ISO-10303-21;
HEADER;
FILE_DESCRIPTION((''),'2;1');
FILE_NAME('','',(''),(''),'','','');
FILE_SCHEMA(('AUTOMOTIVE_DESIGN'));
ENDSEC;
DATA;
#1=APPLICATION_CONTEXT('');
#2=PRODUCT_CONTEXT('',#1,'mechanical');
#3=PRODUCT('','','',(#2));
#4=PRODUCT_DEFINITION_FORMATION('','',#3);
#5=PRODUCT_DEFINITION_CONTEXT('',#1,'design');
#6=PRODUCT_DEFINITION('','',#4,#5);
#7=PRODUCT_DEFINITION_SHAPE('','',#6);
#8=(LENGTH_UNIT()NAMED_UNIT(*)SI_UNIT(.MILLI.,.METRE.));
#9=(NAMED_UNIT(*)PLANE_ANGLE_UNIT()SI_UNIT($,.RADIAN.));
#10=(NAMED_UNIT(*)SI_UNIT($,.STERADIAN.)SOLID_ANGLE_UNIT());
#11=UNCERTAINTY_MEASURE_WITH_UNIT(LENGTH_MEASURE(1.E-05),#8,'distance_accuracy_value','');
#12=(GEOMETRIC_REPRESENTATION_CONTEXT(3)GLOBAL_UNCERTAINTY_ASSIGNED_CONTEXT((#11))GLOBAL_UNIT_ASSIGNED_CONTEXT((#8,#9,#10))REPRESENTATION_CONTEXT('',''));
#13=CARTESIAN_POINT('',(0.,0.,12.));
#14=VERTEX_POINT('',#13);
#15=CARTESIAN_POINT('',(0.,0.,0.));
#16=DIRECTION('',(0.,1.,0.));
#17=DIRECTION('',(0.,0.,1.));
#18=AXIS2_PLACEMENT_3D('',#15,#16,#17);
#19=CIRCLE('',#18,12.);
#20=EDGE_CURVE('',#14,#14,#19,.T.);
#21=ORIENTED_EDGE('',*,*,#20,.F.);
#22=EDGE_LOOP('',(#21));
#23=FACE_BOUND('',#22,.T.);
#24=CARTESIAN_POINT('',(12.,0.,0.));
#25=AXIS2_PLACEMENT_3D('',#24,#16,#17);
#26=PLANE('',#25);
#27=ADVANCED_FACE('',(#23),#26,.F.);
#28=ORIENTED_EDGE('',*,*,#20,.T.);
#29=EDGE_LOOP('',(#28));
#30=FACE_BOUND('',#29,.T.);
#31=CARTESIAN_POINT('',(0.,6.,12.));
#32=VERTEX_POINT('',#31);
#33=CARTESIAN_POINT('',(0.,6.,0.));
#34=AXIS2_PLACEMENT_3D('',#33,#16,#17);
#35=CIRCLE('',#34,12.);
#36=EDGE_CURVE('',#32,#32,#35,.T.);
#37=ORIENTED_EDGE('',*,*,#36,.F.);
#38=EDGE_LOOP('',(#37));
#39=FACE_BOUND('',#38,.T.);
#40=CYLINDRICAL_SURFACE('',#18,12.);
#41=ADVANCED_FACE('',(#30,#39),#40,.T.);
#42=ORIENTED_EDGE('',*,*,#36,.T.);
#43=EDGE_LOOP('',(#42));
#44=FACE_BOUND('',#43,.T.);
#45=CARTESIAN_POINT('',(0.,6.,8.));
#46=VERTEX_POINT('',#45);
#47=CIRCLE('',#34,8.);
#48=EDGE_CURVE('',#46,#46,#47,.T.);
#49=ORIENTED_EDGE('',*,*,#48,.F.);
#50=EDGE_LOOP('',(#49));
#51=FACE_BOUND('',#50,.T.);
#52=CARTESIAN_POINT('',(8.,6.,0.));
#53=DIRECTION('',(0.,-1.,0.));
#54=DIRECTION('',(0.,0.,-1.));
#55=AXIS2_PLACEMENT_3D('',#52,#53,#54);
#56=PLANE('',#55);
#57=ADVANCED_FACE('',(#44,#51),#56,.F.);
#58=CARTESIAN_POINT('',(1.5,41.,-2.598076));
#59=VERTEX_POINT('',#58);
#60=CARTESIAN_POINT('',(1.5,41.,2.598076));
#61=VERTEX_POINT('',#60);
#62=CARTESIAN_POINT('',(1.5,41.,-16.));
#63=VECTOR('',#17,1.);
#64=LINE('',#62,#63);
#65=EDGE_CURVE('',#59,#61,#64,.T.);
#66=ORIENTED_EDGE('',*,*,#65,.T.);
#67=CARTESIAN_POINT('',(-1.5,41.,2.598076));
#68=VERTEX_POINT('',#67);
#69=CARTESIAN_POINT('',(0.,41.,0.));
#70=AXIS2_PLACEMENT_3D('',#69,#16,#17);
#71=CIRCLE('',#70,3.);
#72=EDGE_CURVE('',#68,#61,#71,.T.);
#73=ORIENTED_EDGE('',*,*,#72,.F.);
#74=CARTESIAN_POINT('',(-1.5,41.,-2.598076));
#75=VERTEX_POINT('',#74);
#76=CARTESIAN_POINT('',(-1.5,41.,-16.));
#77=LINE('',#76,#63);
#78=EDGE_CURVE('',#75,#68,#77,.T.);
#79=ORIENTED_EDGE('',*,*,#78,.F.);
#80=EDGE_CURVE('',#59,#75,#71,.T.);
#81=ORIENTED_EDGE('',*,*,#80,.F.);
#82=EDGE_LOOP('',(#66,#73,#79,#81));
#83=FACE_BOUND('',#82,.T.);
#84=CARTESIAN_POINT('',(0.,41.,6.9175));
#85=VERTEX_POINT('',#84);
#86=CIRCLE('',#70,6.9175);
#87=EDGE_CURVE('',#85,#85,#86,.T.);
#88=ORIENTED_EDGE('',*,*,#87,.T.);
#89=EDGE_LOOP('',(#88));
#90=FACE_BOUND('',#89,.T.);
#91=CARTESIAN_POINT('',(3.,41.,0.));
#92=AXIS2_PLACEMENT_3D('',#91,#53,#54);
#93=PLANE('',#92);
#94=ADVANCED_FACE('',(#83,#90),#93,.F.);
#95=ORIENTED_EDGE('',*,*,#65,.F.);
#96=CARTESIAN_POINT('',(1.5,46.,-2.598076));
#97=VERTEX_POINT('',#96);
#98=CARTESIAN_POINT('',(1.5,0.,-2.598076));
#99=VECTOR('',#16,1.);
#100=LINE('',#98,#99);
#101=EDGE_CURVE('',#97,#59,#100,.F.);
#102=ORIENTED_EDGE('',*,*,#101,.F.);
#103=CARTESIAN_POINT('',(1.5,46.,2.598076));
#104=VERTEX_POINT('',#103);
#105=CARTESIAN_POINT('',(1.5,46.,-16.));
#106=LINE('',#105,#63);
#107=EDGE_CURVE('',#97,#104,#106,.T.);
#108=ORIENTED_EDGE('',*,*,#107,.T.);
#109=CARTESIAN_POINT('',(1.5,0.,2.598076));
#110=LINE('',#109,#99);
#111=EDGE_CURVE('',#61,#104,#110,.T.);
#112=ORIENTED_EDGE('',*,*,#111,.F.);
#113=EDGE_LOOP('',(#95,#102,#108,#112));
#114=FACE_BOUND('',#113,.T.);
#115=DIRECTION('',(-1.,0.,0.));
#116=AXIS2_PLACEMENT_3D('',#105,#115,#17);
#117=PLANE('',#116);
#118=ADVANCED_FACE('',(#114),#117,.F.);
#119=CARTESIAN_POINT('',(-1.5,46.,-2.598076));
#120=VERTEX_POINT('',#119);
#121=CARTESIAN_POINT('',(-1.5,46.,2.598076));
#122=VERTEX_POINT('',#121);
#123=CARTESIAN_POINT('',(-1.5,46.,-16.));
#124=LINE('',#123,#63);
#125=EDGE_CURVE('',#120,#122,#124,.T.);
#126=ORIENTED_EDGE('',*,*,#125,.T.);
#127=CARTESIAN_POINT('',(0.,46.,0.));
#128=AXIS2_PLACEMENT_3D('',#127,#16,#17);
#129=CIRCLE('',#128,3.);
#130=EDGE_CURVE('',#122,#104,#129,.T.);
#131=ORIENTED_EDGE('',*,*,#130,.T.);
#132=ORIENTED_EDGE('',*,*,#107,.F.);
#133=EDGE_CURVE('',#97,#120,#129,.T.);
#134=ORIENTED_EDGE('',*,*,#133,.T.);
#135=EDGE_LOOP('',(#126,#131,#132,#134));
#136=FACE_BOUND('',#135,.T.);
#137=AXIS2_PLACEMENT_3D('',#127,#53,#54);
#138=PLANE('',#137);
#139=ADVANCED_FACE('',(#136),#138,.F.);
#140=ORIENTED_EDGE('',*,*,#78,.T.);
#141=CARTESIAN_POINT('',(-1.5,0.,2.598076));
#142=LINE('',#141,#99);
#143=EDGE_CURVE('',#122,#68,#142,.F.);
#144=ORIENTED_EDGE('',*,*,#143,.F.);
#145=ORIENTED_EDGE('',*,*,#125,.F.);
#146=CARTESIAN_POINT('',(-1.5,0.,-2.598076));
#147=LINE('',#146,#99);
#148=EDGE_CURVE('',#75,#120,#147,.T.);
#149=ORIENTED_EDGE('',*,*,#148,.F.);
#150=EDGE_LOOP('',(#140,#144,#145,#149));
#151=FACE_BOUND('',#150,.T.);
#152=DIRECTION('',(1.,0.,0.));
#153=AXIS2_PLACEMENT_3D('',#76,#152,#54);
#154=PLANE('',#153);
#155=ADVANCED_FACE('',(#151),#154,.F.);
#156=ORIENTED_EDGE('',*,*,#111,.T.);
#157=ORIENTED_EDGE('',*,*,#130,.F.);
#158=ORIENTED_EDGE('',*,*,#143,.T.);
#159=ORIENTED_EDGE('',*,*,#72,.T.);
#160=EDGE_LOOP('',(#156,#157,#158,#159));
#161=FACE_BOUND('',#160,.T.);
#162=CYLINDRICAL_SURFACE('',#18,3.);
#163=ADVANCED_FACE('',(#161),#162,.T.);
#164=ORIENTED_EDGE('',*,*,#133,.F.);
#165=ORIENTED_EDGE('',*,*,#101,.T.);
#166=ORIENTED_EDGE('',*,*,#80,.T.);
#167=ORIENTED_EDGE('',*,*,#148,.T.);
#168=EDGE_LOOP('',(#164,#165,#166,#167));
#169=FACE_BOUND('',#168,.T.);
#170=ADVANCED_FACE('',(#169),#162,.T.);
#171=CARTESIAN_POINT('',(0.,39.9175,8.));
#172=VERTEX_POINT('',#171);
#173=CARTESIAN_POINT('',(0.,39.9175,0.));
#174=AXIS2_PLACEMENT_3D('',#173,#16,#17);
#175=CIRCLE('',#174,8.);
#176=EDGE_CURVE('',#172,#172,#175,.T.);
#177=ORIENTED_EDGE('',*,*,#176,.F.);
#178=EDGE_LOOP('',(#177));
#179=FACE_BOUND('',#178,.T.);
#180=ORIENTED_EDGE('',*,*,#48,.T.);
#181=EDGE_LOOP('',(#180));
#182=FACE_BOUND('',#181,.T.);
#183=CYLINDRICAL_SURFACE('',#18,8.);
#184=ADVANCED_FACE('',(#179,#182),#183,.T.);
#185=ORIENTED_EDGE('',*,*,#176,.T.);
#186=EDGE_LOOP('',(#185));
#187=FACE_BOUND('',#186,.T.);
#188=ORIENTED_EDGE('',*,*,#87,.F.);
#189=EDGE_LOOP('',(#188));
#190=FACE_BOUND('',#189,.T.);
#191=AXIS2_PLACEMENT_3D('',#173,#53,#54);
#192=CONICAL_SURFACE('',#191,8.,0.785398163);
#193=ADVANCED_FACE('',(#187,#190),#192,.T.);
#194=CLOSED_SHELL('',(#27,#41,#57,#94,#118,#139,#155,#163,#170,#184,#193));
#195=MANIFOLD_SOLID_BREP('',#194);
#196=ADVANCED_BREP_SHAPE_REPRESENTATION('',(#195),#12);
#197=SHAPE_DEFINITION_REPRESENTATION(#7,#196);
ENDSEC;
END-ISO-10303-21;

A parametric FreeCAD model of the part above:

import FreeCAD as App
import Part
import Sketcher
from FreeCAD import Vector
Q = App.Units.Quantity

doc = App.newDocument("Part")
body = doc.addObject("PartDesign::Body", "Body")

# Sketch on XY plane
sketch1 = body.newObject("Sketcher::SketchObject", "Sketch")
sketch1.AttachmentSupport = (doc.getObject("XY_Plane"), [""])
sketch1.MapMode = "FlatFace"
sketch1.addGeometry(Part.LineSegment(Vector(3, 46, 0), Vector(0, 46, 0)), False)
sketch1.addGeometry(Part.LineSegment(Vector(0, 46, 0), Vector(0, 0, 0)), False)
sketch1.addGeometry(Part.LineSegment(Vector(0, 0, 0), Vector(12, 0, 0)), False)
sketch1.addGeometry(Part.LineSegment(Vector(12, 0, 0), Vector(12, 6, 0)), False)
sketch1.addGeometry(Part.LineSegment(Vector(12, 6, 0), Vector(8, 6, 0)), False)
sketch1.addGeometry(Part.LineSegment(Vector(8, 6, 0), Vector(8, 39.9, 0)), False)
sketch1.addGeometry(Part.LineSegment(Vector(8, 39.9, 0), Vector(6.9, 41, 0)), False)
sketch1.addGeometry(Part.LineSegment(Vector(6.9, 41, 0), Vector(3, 41, 0)), False)
sketch1.addGeometry(Part.LineSegment(Vector(3, 41, 0), Vector(3, 46, 0)), False)
sketch1.addConstraint(Sketcher.Constraint("Coincident", 0, 2, 1, 1))
sketch1.addConstraint(Sketcher.Constraint("Coincident", 1, 2, 2, 1))
sketch1.addConstraint(Sketcher.Constraint("Coincident", 2, 2, 3, 1))
sketch1.addConstraint(Sketcher.Constraint("Coincident", 3, 2, 4, 1))
sketch1.addConstraint(Sketcher.Constraint("Coincident", 4, 2, 5, 1))
sketch1.addConstraint(Sketcher.Constraint("Coincident", 5, 2, 6, 1))
sketch1.addConstraint(Sketcher.Constraint("Coincident", 6, 2, 7, 1))
sketch1.addConstraint(Sketcher.Constraint("Coincident", 7, 2, 8, 1))
sketch1.addConstraint(Sketcher.Constraint("Coincident", 8, 2, 0, 1))
sketch1.addConstraint(Sketcher.Constraint("Horizontal", 0))
sketch1.addConstraint(Sketcher.Constraint("Vertical", 1))
sketch1.addConstraint(Sketcher.Constraint("Horizontal", 2))
sketch1.addConstraint(Sketcher.Constraint("Vertical", 3))
sketch1.addConstraint(Sketcher.Constraint("Horizontal", 4))
sketch1.addConstraint(Sketcher.Constraint("Vertical", 5))
sketch1.addConstraint(Sketcher.Constraint("Horizontal", 7))
sketch1.addConstraint(Sketcher.Constraint("Vertical", 8))
sketch1.addConstraint(Sketcher.Constraint("Coincident", 1, 2, -1, 1))
sketch1.addConstraint(Sketcher.Constraint("DistanceX", 0, 2, 0, 1, 3.0))
sketch1.addConstraint(Sketcher.Constraint("DistanceX", 2, 1, 2, 2, 12.0))
sketch1.addConstraint(Sketcher.Constraint("DistanceX", 4, 2, 4, 1, 4.0))
sketch1.addConstraint(Sketcher.Constraint("DistanceY", 1, 2, 1, 1, 46.0))
sketch1.addConstraint(Sketcher.Constraint("DistanceY", 3, 1, 3, 2, 6.0))
sketch1.addConstraint(Sketcher.Constraint("DistanceY", 8, 1, 8, 2, 5.0))
sketch1.addConstraint(Sketcher.Constraint("Angle", 6, Q("135 deg")))
sketch1.addConstraint(Sketcher.Constraint("DistanceX", 7, 2, 7, 1, 3.9175))
revolution = body.newObject("PartDesign::Revolution", "Revolution")
revolution.Profile = sketch1
revolution.ReferenceAxis = (sketch1, ["V_Axis"])
revolution.Angle = 360

# Sketch on XY plane
sketch2 = body.newObject("Sketcher::SketchObject", "Sketch001")
sketch2.AttachmentSupport = (doc.getObject("XY_Plane"), [""])
sketch2.MapMode = "FlatFace"
sketch2.addGeometry(Part.LineSegment(Vector(-3, 41, 0), Vector(-1.5, 41, 0)), False)
sketch2.addGeometry(Part.LineSegment(Vector(-1.5, 41, 0), Vector(-1.5, 46, 0)), False)
sketch2.addGeometry(Part.LineSegment(Vector(-1.5, 46, 0), Vector(1.5, 46, 0)), False)
sketch2.addGeometry(Part.LineSegment(Vector(1.5, 46, 0), Vector(1.5, 41, 0)), False)
sketch2.addGeometry(Part.LineSegment(Vector(1.5, 41, 0), Vector(3, 41, 0)), False)
sketch2.addGeometry(Part.LineSegment(Vector(3, 41, 0), Vector(3, 49, 0)), False)
sketch2.addGeometry(Part.LineSegment(Vector(3, 49, 0), Vector(-3, 49, 0)), False)
sketch2.addGeometry(Part.LineSegment(Vector(-3, 49, 0), Vector(-3, 41, 0)), False)
sketch2.addConstraint(Sketcher.Constraint("Coincident", 0, 2, 1, 1))
sketch2.addConstraint(Sketcher.Constraint("Coincident", 1, 2, 2, 1))
sketch2.addConstraint(Sketcher.Constraint("Coincident", 2, 2, 3, 1))
sketch2.addConstraint(Sketcher.Constraint("Coincident", 3, 2, 4, 1))
sketch2.addConstraint(Sketcher.Constraint("Coincident", 4, 2, 5, 1))
sketch2.addConstraint(Sketcher.Constraint("Coincident", 5, 2, 6, 1))
sketch2.addConstraint(Sketcher.Constraint("Coincident", 6, 2, 7, 1))
sketch2.addConstraint(Sketcher.Constraint("Coincident", 7, 2, 0, 1))
sketch2.addConstraint(Sketcher.Constraint("Horizontal", 0))
sketch2.addConstraint(Sketcher.Constraint("Vertical", 1))
sketch2.addConstraint(Sketcher.Constraint("Horizontal", 2))
sketch2.addConstraint(Sketcher.Constraint("Vertical", 3))
sketch2.addConstraint(Sketcher.Constraint("Horizontal", 4))
sketch2.addConstraint(Sketcher.Constraint("Vertical", 5))
sketch2.addConstraint(Sketcher.Constraint("Horizontal", 6))
sketch2.addConstraint(Sketcher.Constraint("Vertical", 7))
sketch2.addConstraint(Sketcher.Constraint("Symmetric", 0, 2, 3, 2, -2))
sketch2.addConstraint(Sketcher.Constraint("Equal", 0, 4))
sketch2.addConstraint(Sketcher.Constraint("DistanceX", 2, 1, 2, 2, 3.0))
sketch2.addConstraint(Sketcher.Constraint("DistanceX", 6, 2, 6, 1, 6.0))
sketch2.addConstraint(Sketcher.Constraint("DistanceY", 1, 1, 1, 2, 5.0))
sketch2.addConstraint(Sketcher.Constraint("DistanceY", 5, 1, 5, 2, 8.0))
sketch2.addConstraint(Sketcher.Constraint("DistanceY", -1, 1, 0, 2, 41.0))
pocket1 = body.newObject("PartDesign::Pocket", "Pocket")
pocket1.Profile = sketch2
pocket1.Type = "ThroughAll"
pocket1.Midplane = True

doc.recompute()
